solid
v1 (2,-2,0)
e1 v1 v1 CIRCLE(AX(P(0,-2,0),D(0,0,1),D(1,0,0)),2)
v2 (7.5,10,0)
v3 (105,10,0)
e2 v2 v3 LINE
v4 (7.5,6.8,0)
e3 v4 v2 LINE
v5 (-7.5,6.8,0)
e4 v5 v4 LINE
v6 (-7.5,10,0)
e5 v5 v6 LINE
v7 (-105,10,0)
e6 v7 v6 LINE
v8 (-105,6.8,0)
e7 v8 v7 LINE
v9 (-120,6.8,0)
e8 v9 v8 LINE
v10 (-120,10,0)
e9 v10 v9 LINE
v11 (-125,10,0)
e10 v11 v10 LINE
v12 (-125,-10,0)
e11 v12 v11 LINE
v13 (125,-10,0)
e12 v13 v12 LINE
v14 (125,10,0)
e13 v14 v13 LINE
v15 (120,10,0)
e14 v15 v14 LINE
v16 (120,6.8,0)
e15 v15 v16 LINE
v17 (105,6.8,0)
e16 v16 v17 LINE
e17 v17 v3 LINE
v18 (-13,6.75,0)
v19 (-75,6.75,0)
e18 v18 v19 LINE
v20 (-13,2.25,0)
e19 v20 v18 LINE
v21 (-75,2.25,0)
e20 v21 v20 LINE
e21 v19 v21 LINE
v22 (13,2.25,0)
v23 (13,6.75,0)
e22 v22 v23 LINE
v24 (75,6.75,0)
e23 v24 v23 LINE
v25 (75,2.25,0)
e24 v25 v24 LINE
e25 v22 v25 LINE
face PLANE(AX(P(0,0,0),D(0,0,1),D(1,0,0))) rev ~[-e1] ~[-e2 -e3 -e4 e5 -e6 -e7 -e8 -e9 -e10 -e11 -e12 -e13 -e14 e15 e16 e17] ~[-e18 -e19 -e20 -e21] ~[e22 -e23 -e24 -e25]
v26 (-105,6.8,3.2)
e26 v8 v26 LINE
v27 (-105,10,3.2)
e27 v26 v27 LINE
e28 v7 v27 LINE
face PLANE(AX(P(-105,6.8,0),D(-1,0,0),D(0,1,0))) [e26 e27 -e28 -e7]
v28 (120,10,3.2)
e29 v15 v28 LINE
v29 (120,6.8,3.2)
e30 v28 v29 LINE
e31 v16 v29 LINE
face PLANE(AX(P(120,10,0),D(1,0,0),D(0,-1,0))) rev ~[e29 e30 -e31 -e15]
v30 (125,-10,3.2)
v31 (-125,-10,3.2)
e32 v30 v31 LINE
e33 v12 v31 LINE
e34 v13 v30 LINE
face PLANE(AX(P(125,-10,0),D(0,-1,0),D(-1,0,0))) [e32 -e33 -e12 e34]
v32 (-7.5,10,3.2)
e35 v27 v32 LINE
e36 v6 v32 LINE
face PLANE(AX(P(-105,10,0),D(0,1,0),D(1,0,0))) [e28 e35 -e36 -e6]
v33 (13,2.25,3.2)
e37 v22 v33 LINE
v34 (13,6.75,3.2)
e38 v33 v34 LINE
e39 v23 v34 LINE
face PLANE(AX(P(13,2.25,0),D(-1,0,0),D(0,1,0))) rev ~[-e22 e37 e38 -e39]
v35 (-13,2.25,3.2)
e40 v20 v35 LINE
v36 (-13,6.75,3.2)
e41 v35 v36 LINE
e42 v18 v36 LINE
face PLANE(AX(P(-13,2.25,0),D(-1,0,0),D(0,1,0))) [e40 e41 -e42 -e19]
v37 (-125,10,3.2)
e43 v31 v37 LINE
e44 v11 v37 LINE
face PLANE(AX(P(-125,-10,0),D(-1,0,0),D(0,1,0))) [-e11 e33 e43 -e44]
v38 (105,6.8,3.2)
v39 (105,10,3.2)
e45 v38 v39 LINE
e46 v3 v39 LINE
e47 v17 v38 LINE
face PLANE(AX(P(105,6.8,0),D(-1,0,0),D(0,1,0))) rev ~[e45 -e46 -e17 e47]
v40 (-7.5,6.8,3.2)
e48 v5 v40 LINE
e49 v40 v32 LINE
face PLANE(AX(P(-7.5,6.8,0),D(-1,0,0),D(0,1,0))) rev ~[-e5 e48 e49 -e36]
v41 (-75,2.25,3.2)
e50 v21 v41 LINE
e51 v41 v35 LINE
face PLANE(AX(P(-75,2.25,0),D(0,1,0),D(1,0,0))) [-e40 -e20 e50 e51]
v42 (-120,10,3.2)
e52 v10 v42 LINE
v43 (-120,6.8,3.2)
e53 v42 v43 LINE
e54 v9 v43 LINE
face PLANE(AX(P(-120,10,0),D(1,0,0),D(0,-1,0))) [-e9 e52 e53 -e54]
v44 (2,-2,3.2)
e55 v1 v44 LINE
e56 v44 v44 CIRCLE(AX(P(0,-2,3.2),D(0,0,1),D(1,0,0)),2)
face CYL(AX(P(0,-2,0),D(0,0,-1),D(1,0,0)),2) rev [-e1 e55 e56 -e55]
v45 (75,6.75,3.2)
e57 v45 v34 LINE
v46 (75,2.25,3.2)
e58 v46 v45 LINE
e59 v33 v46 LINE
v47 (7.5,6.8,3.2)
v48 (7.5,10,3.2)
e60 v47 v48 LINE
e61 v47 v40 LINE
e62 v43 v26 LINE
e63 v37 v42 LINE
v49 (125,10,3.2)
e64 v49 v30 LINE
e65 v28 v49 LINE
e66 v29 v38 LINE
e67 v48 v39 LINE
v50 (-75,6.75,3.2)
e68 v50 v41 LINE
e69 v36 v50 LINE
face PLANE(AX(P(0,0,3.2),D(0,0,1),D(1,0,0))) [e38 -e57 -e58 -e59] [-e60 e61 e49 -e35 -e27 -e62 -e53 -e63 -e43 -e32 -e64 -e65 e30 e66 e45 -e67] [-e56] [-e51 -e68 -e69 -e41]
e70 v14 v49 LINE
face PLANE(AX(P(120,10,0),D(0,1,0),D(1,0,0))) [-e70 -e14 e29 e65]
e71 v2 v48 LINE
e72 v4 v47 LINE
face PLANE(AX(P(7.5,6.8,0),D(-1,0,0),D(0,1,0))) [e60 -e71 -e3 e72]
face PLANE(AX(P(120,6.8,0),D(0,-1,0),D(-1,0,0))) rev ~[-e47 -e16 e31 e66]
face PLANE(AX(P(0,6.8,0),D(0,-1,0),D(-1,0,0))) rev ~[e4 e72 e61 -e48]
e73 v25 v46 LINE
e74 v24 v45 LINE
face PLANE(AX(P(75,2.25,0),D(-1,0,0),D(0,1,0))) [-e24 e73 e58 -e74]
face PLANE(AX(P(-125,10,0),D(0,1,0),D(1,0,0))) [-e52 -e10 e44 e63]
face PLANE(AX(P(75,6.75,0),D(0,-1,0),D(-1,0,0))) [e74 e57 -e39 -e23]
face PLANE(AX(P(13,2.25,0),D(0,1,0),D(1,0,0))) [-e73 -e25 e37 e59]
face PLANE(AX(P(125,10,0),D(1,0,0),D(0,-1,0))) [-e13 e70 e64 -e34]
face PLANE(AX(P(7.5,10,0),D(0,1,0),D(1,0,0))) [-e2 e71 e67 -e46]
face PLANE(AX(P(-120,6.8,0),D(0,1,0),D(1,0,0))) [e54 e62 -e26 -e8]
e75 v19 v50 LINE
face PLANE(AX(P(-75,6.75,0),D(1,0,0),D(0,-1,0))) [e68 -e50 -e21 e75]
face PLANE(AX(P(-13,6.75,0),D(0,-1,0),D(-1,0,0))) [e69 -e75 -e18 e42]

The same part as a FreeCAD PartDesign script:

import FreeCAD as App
import Part
import Sketcher
Q = App.Units.Quantity


def add_polygon(sketch, points):
    """Adds a closed chain of lines whose ends are joined by coincident constraints."""
    first, n = sketch.GeometryCount, len(points)
    for a, b in zip(points, points[1:] + points[:1]):
        sketch.addGeometry(Part.LineSegment(App.Vector(*a, 0), App.Vector(*b, 0)), False)
    for i in range(n):
        sketch.addConstraint(Sketcher.Constraint("Coincident", first + i, 2, first + (i + 1) % n, 1))

doc = App.newDocument("Part")
body = doc.addObject("PartDesign::Body", "Body")

# Sketch on XY plane
sketch1 = body.newObject("Sketcher::SketchObject", "Sketch")
sketch1.AttachmentSupport = (doc.getObject("XY_Plane"), [""])
sketch1.MapMode = "FlatFace"
add_polygon(sketch1, [(-125, -10), (125, -10), (125, 10), (120, 10), (120, 6.8), (105, 6.8), (105, 10), (7.5, 10), (7.5, 6.8), (-7.5, 6.8), (-7.5, 10), (-105, 10), (-105, 6.8), (-120, 6.8), (-120, 10), (-125, 10)])  # lines 0-15
sketch1.addGeometry(Part.Circle(App.Vector(0, -2, 0), App.Vector(0, 0, 1), 2), False)  # 16
add_polygon(sketch1, [(13, 6.8), (75, 6.8), (75, 2.2), (13, 2.2)])  # lines 17-20
add_polygon(sketch1, [(-75, 6.8), (-13, 6.8), (-13, 2.2), (-75, 2.2)])  # lines 21-24
sketch1.addConstraint([
    Sketcher.Constraint("Horizontal", 0),
    Sketcher.Constraint("Vertical", 1),
    Sketcher.Constraint("Horizontal", 2),
    Sketcher.Constraint("Vertical", 3),
    Sketcher.Constraint("Horizontal", 4),
    Sketcher.Constraint("Vertical", 5),
    Sketcher.Constraint("Horizontal", 6),
    Sketcher.Constraint("Vertical", 7),
    Sketcher.Constraint("Horizontal", 8),
    Sketcher.Constraint("Vertical", 9),
    Sketcher.Constraint("Horizontal", 10),
    Sketcher.Constraint("Vertical", 11),
    Sketcher.Constraint("Horizontal", 12),
    Sketcher.Constraint("Vertical", 13),
    Sketcher.Constraint("Horizontal", 14),
    Sketcher.Constraint("Vertical", 15),
    Sketcher.Constraint("Horizontal", 17),
    Sketcher.Constraint("Vertical", 18),
    Sketcher.Constraint("Horizontal", 19),
    Sketcher.Constraint("Vertical", 20),
    Sketcher.Constraint("Horizontal", 21),
    Sketcher.Constraint("Vertical", 22),
    Sketcher.Constraint("Horizontal", 23),
    Sketcher.Constraint("Vertical", 24),
    Sketcher.Constraint("Symmetric", 0, 2, 14, 2, -1, 1),
    Sketcher.Constraint("Symmetric", 6, 2, 9, 2, -2),
    Sketcher.Constraint("Symmetric", 4, 2, 11, 2, -2),
    Sketcher.Constraint("Symmetric", 2, 2, 13, 2, -2),
    Sketcher.Constraint("Symmetric", 20, 2, 21, 2, -2),
    Sketcher.Constraint("Symmetric", 18, 2, 23, 2, -2),
    Sketcher.Constraint("PointOnObject", 16, 3, -2),
    Sketcher.Constraint("Horizontal", 2, 2, 5, 2),
    Sketcher.Constraint("Horizontal", 4, 2, 7, 2),
    Sketcher.Constraint("Equal", 4, 8),
    Sketcher.Constraint("Diameter", 16, Q("4 mm")),
    Sketcher.Constraint("DistanceX", 0, 1, 0, 2, Q("250 mm")),
    Sketcher.Constraint("DistanceX", 2, 2, 2, 1, Q("5 mm")),
    Sketcher.Constraint("DistanceX", 4, 2, 4, 1, Q("15 mm")),
    Sketcher.Constraint("DistanceY", 1, 1, 1, 2, Q("20 mm")),
    Sketcher.Constraint("DistanceY", 3, 2, 3, 1, Q("3.2 mm")),
    Sketcher.Constraint("DistanceY", 18, 2, 18, 1, Q("4.5 mm")),
    Sketcher.Constraint("DistanceY", 16, 3, -1, 1, Q("2 mm")),
    Sketcher.Constraint("DistanceX", -1, 1, 19, 2, Q("13 mm")),
    Sketcher.Constraint("DistanceX", 17, 1, 17, 2, Q("62 mm")),
    Sketcher.Constraint("DistanceY", -1, 1, 17, 2, Q("6.75 mm")),
])
pad1 = body.newObject("PartDesign::Pad", "Pad")
pad1.Profile = sketch1
pad1.Length = 3.2

doc.recompute()
